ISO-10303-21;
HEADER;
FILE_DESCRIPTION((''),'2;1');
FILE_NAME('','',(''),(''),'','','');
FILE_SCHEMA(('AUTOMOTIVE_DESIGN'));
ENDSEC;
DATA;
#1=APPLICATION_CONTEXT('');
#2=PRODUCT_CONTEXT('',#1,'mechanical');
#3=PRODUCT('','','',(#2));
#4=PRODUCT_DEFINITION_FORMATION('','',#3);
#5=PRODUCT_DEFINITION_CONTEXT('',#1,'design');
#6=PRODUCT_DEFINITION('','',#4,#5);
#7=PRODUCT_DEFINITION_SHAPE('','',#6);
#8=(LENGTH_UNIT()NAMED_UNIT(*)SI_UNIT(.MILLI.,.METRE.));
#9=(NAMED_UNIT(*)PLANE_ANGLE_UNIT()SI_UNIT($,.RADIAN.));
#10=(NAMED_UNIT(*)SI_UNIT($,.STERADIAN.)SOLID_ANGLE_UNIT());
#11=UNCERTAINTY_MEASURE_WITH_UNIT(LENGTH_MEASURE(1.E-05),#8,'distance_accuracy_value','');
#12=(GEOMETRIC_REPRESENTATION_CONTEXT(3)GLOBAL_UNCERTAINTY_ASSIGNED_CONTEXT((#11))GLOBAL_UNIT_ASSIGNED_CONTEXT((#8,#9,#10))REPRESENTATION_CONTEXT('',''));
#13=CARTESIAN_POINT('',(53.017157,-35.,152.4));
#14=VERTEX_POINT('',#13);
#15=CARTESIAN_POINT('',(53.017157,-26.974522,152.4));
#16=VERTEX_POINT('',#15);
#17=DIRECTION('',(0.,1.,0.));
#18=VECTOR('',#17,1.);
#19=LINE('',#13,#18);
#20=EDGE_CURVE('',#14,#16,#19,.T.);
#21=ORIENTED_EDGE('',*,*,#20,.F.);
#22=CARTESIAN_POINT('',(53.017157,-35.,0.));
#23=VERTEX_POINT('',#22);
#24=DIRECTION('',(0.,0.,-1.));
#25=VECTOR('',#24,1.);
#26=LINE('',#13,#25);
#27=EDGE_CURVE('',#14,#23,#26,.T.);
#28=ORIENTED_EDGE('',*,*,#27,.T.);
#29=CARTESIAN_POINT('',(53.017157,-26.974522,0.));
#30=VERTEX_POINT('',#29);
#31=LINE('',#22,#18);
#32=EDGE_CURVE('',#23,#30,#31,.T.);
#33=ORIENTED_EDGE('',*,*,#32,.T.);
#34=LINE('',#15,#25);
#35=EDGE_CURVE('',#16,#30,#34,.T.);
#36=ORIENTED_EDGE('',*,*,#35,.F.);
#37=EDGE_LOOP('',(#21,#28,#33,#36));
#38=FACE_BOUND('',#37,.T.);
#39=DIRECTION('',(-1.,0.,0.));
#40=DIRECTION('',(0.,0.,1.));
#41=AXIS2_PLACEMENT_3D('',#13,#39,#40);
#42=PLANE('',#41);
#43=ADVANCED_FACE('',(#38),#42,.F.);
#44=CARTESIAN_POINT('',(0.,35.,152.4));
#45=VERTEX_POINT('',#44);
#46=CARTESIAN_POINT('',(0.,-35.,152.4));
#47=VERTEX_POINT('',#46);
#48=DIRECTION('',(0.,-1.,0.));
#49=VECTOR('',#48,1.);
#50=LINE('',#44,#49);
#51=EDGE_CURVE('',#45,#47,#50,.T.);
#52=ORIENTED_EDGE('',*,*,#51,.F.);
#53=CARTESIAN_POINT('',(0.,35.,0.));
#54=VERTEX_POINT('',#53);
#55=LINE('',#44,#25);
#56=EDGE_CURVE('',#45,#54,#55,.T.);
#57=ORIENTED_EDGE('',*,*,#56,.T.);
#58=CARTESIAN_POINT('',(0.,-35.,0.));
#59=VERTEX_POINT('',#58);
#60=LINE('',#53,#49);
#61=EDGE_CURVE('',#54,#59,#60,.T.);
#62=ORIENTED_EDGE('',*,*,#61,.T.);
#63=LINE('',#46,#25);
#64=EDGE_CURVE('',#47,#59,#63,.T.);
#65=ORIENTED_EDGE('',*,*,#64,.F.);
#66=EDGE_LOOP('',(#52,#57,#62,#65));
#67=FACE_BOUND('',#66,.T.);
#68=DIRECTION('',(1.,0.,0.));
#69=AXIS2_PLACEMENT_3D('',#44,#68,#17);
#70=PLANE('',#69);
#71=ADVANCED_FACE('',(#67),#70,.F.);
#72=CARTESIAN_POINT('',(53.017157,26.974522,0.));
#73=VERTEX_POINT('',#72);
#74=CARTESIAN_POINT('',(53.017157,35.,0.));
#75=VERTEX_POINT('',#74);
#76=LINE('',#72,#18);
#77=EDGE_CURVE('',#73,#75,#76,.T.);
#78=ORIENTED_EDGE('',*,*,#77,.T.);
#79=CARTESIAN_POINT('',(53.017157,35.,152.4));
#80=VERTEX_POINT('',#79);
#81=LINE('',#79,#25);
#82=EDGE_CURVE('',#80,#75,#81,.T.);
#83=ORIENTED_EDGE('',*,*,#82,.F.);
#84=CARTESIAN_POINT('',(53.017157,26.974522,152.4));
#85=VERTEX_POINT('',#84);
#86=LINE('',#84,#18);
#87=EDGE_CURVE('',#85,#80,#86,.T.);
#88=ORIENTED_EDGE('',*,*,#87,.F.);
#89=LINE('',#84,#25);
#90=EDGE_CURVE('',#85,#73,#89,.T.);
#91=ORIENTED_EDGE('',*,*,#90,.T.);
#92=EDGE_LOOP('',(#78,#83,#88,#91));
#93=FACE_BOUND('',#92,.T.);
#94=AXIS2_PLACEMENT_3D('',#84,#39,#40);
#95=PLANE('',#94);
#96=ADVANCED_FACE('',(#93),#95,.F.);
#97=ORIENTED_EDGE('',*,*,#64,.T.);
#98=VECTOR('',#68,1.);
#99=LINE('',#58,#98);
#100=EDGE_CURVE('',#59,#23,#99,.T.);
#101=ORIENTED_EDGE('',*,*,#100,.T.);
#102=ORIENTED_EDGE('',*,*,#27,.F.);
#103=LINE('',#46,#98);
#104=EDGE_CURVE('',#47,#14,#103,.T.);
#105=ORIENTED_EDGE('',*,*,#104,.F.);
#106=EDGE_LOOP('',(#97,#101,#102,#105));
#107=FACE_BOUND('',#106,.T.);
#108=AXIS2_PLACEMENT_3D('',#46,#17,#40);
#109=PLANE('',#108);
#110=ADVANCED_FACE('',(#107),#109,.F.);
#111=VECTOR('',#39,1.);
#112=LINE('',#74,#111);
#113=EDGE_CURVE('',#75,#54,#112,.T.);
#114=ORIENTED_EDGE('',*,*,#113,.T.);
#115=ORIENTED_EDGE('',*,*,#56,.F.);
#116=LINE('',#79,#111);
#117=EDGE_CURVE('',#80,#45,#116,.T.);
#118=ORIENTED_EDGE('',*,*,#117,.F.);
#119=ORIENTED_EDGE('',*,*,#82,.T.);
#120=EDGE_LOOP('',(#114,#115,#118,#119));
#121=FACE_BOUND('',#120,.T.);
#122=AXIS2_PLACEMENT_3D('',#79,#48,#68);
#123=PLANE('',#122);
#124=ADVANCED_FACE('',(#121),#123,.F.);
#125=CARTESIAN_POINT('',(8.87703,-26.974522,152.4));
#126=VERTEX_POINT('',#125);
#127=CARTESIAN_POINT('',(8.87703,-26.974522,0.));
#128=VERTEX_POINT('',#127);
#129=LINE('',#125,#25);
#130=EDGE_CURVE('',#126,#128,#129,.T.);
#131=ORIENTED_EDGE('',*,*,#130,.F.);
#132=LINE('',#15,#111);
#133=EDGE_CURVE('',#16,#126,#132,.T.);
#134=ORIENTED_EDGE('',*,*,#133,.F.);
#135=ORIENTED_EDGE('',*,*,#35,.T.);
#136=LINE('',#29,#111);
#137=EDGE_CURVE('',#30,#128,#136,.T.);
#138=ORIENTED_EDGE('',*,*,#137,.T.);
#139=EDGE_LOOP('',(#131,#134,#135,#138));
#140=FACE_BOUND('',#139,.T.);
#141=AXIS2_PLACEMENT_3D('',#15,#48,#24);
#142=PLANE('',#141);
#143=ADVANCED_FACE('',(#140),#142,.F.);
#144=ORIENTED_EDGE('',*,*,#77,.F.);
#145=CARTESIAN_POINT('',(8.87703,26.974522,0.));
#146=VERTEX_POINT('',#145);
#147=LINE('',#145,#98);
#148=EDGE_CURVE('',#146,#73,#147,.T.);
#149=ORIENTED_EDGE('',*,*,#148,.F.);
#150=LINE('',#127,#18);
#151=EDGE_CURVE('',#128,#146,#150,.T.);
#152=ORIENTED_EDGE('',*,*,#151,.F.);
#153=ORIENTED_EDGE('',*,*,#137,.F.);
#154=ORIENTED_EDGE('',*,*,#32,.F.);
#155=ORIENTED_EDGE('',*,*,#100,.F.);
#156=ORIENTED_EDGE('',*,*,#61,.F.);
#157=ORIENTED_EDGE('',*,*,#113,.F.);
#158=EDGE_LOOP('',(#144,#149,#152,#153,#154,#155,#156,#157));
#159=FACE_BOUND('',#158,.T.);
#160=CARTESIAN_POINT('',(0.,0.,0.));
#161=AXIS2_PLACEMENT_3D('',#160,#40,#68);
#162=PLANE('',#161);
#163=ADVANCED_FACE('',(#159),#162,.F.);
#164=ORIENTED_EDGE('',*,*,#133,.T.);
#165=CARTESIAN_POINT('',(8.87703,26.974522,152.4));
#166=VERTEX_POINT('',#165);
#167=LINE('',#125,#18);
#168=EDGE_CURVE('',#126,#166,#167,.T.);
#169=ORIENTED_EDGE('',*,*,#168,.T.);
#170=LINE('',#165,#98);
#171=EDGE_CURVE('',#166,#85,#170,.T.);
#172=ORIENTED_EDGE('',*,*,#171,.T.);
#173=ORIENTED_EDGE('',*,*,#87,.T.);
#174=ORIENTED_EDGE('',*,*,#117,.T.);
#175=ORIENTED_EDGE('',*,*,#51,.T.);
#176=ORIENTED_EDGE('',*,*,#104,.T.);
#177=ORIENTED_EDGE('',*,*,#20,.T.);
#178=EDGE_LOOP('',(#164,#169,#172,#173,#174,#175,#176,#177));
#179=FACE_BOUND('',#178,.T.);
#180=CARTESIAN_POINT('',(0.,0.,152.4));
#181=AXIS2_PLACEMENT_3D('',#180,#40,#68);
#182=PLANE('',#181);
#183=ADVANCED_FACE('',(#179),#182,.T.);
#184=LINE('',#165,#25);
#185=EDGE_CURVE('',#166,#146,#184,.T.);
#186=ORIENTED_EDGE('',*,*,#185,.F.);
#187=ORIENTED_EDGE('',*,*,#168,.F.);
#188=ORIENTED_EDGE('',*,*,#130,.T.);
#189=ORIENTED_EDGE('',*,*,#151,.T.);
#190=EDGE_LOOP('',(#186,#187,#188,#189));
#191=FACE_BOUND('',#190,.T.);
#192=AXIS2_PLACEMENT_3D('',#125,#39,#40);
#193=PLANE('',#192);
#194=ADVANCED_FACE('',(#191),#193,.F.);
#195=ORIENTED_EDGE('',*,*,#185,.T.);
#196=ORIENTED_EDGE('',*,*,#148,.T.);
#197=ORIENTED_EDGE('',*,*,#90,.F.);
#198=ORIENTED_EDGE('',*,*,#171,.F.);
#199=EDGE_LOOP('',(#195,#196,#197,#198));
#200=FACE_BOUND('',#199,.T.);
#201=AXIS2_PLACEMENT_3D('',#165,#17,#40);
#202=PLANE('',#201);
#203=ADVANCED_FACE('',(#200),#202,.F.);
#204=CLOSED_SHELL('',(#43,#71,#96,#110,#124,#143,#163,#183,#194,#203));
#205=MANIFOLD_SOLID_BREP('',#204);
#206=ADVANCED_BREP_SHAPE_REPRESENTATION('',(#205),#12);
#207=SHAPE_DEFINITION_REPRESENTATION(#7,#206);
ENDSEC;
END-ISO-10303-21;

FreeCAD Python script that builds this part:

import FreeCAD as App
import Part
import Sketcher

doc = App.newDocument("Part")
params = doc.addObject("Spreadsheet::Sheet", "Params")
for row, (alias, value) in enumerate([
    ("sketch1_height", "70 mm"),
    ("pad1_length", "152.4 mm"),
], start=1):
    params.set(f"A{row}", alias)
    params.set(f"B{row}", "=" + value)
    params.setAlias(f"B{row}", alias)

body = doc.addObject("PartDesign::Body", "Body")

sketch1 = body.newObject("Sketcher::SketchObject", "Sketch")
sketch1.AttachmentSupport = (doc.getObject("XY_Plane"), [""])
sketch1.MapMode = "FlatFace"
sketch1.addGeometry(Part.LineSegment(App.Vector(0, 35, 0), App.Vector(0, -35, 0)), False)
sketch1.addGeometry(Part.LineSegment(App.Vector(0, -35, 0), App.Vector(53, -35, 0)), False)
sketch1.addGeometry(Part.LineSegment(App.Vector(53, -35, 0), App.Vector(53, -27, 0)), False)
sketch1.addGeometry(Part.LineSegment(App.Vector(53, -27, 0), App.Vector(9, -27, 0)), False)
sketch1.addGeometry(Part.LineSegment(App.Vector(9, -27, 0), App.Vector(9, 27, 0)), False)
sketch1.addGeometry(Part.LineSegment(App.Vector(9, 27, 0), App.Vector(53, 27, 0)), False)
sketch1.addGeometry(Part.LineSegment(App.Vector(53, 27, 0), App.Vector(53, 35, 0)), False)
sketch1.addGeometry(Part.LineSegment(App.Vector(53, 35, 0), App.Vector(0, 35, 0)), False)
sketch1.addConstraint(Sketcher.Constraint("Coincident", 0, 2, 1, 1))
sketch1.addConstraint(Sketcher.Constraint("Coincident", 1, 2, 2, 1))
sketch1.addConstraint(Sketcher.Constraint("Coincident", 2, 2, 3, 1))
sketch1.addConstraint(Sketcher.Constraint("Coincident", 3, 2, 4, 1))
sketch1.addConstraint(Sketcher.Constraint("Coincident", 4, 2, 5, 1))
sketch1.addConstraint(Sketcher.Constraint("Coincident", 5, 2, 6, 1))
sketch1.addConstraint(Sketcher.Constraint("Coincident", 6, 2, 7, 1))
sketch1.addConstraint(Sketcher.Constraint("Coincident", 7, 2, 0, 1))
sketch1.addConstraint(Sketcher.Constraint("Vertical", 0))
sketch1.addConstraint(Sketcher.Constraint("Horizontal", 1))
sketch1.addConstraint(Sketcher.Constraint("Vertical", 2))
sketch1.addConstraint(Sketcher.Constraint("Horizontal", 3))
sketch1.addConstraint(Sketcher.Constraint("Vertical", 4))
sketch1.addConstraint(Sketcher.Constraint("Horizontal", 5))
sketch1.addConstraint(Sketcher.Constraint("Vertical", 6))
sketch1.addConstraint(Sketcher.Constraint("Horizontal", 7))
sketch1.addConstraint(Sketcher.Constraint("Symmetric", 0, 2, 7, 2, -1, 1))
sketch1.addConstraint(Sketcher.Constraint("Symmetric", 2, 2, 5, 2, -1))
sketch1.addConstraint(Sketcher.Constraint("DistanceY", 0, 2, 0, 1, 70.0))
sketch1.addConstraint(Sketcher.Constraint("DistanceX", 1, 1, 1, 2, 53.017157))
sketch1.addConstraint(Sketcher.Constraint("DistanceX", 3, 2, 3, 1, 44.140127))
sketch1.addConstraint(Sketcher.Constraint("DistanceY", 2, 1, 2, 2, 8.025478))
sketch1.setExpression("Constraints[18]", "Params.sketch1_height")
pad1 = body.newObject("PartDesign::Pad", "Pad")
pad1.Profile = sketch1
pad1.setExpression("Length", "Params.pad1_length")

doc.recompute()
